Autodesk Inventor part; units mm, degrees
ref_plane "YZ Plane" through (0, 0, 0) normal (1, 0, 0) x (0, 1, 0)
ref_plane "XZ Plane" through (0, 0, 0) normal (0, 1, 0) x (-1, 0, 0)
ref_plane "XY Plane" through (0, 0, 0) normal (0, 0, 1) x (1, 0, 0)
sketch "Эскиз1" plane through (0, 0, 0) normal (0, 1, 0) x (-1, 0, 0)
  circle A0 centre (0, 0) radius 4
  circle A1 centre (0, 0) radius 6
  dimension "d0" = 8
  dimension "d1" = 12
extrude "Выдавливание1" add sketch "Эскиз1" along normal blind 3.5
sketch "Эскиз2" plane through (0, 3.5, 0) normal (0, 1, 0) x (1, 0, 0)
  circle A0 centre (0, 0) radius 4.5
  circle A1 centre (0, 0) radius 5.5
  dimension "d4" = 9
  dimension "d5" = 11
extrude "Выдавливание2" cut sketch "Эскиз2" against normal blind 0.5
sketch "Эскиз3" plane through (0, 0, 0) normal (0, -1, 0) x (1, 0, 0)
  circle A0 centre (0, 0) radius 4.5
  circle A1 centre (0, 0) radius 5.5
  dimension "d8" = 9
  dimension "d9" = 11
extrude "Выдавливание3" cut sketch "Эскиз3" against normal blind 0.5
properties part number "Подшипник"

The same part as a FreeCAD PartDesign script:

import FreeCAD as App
import Part
import Sketcher

doc = App.newDocument("Part")
body = doc.addObject("PartDesign::Body", "Body")

# Sketch on XZ plane
sketch1 = doc.addObject("Sketcher::SketchObject", "Sketch")
body.addObject(sketch1)
sketch1.AttachmentSupport = (doc.XZ_Plane, [""])
sketch1.MapMode = "FlatFace"
sketch1.addGeometry(Part.Circle(App.Vector(0, 0, 0), App.Vector(0, 0, 1), 6), False)
sketch1.addGeometry(Part.Circle(App.Vector(0, 0, 0), App.Vector(0, 0, 1), 4), False)
sketch1.addConstraint(Sketcher.Constraint("Coincident", 0, 3, -1, 1))
sketch1.addConstraint(Sketcher.Constraint("Coincident", 1, 3, -1, 1))
sketch1.addConstraint(Sketcher.Constraint("Diameter", 0, 12.0))
sketch1.addConstraint(Sketcher.Constraint("Diameter", 1, 8.0))
pad1 = doc.addObject("PartDesign::Pad", "Pad")
body.addObject(pad1)
pad1.Profile = sketch1
pad1.Length = 3.5
pad1.Reversed = True

# Sketch on XZ plane
sketch2 = doc.addObject("Sketcher::SketchObject", "Sketch001")
body.addObject(sketch2)
sketch2.AttachmentSupport = (doc.XZ_Plane, [""])
sketch2.MapMode = "FlatFace"
sketch2.AttachmentOffset = App.Placement(App.Vector(0, 0, -3.5), App.Rotation())
sketch2.addGeometry(Part.Circle(App.Vector(0, 0, 0), App.Vector(0, 0, 1), 5.5), False)
sketch2.addGeometry(Part.Circle(App.Vector(0, 0, 0), App.Vector(0, 0, 1), 4.5), False)
sketch2.addConstraint(Sketcher.Constraint("Coincident", 0, 3, -1, 1))
sketch2.addConstraint(Sketcher.Constraint("Coincident", 1, 3, -1, 1))
sketch2.addConstraint(Sketcher.Constraint("Diameter", 0, 11.0))
sketch2.addConstraint(Sketcher.Constraint("Diameter", 1, 9.0))
pocket1 = doc.addObject("PartDesign::Pocket", "Pocket")
body.addObject(pocket1)
pocket1.Profile = sketch2
pocket1.Length = 0.5
pocket1.Reversed = True

# Sketch on XZ plane
sketch3 = doc.addObject("Sketcher::SketchObject", "Sketch002")
body.addObject(sketch3)
sketch3.AttachmentSupport = (doc.XZ_Plane, [""])
sketch3.MapMode = "FlatFace"
sketch3.addGeometry(Part.Circle(App.Vector(0, 0, 0), App.Vector(0, 0, 1), 5.5), False)
sketch3.addGeometry(Part.Circle(App.Vector(0, 0, 0), App.Vector(0, 0, 1), 4.5), False)
sketch3.addConstraint(Sketcher.Constraint("Coincident", 0, 3, -1, 1))
sketch3.addConstraint(Sketcher.Constraint("Coincident", 1, 3, -1, 1))
sketch3.addConstraint(Sketcher.Constraint("Diameter", 0, 11.0))
sketch3.addConstraint(Sketcher.Constraint("Diameter", 1, 9.0))
pocket2 = doc.addObject("PartDesign::Pocket", "Pocket001")
body.addObject(pocket2)
pocket2.Profile = sketch3
pocket2.Length = 0.5

doc.recompute()
